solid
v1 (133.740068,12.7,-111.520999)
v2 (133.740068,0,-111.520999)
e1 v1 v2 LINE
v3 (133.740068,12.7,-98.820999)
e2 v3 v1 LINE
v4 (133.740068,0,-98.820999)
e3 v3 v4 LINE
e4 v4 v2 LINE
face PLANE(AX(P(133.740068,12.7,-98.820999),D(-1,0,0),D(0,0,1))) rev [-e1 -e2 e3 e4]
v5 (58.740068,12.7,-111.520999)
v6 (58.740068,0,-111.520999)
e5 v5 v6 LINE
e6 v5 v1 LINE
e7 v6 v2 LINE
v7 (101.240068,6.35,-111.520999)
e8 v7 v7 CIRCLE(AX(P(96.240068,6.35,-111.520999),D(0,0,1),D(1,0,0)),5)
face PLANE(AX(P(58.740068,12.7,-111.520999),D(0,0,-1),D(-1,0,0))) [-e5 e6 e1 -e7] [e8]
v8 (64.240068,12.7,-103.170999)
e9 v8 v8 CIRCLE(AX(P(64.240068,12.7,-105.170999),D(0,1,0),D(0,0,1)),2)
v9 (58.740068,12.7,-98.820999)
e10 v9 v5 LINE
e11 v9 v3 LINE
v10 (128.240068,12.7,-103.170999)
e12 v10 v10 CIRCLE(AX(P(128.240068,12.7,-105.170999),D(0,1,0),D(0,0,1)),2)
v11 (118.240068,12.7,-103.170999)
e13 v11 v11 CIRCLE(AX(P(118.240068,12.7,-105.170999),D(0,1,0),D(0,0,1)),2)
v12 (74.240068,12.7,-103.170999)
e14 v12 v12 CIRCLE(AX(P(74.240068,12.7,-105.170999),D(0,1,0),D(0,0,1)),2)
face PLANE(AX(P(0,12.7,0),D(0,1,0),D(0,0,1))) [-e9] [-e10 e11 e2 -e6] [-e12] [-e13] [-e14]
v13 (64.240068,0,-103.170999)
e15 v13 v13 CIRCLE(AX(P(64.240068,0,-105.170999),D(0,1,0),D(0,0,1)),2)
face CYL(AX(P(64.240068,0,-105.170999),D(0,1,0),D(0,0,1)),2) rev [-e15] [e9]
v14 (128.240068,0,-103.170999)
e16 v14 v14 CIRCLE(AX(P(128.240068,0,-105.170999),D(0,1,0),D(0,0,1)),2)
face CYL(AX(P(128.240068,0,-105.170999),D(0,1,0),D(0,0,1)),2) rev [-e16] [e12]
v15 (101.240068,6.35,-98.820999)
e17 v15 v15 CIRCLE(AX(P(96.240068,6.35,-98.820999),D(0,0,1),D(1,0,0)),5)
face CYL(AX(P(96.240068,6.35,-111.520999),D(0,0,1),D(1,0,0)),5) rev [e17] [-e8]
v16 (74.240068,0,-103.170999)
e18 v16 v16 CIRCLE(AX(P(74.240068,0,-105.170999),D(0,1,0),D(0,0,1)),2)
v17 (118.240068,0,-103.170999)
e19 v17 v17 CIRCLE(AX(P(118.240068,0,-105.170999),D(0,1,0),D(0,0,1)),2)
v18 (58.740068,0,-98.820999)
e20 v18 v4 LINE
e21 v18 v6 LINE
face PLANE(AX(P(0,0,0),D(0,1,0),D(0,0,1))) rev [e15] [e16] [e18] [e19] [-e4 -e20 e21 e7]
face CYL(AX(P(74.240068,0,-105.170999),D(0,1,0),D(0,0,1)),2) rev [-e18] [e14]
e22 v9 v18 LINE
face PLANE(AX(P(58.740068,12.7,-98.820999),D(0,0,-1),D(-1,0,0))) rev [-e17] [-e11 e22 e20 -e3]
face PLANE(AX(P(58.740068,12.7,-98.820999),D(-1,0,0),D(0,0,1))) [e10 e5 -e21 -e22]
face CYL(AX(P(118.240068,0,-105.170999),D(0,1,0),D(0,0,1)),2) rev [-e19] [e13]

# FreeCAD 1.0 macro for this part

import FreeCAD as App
import Part
import Sketcher
from FreeCAD import Vector
Q = App.Units.Quantity

doc = App.newDocument("Part")
body = doc.addObject("PartDesign::Body", "Body")

# Sketch on XZ plane
sketch1 = doc.addObject("Sketcher::SketchObject", "Sketch")
body.addObject(sketch1)
sketch1.AttachmentSupport = (doc.XZ_Plane, [""])
sketch1.MapMode = "FlatFace"
sketch1.addGeometry(Part.LineSegment(Vector(59, -112, 0), Vector(59, -99, 0)), False)
sketch1.addGeometry(Part.LineSegment(Vector(59, -99, 0), Vector(134, -99, 0)), False)
sketch1.addGeometry(Part.LineSegment(Vector(134, -99, 0), Vector(134, -112, 0)), False)
sketch1.addGeometry(Part.LineSegment(Vector(134, -112, 0), Vector(59, -112, 0)), False)
sketch1.addConstraint(Sketcher.Constraint("Coincident", 0, 2, 1, 1))
sketch1.addConstraint(Sketcher.Constraint("Coincident", 1, 2, 2, 1))
sketch1.addConstraint(Sketcher.Constraint("Coincident", 2, 2, 3, 1))
sketch1.addConstraint(Sketcher.Constraint("Coincident", 3, 2, 0, 1))
sketch1.addConstraint(Sketcher.Constraint("Vertical", 0))
sketch1.addConstraint(Sketcher.Constraint("Horizontal", 1))
sketch1.addConstraint(Sketcher.Constraint("Vertical", 2))
sketch1.addConstraint(Sketcher.Constraint("Horizontal", 3))
sketch1.addConstraint(Sketcher.Constraint("DistanceX", 1, 1, 1, 2, Q("75 mm")))
sketch1.addConstraint(Sketcher.Constraint("DistanceY", 0, 1, 0, 2, Q("12.7 mm")))
sketch1.addConstraint(Sketcher.Constraint("DistanceY", 0, 2, -1, 1, Q("98.820999 mm")))
sketch1.addConstraint(Sketcher.Constraint("DistanceX", -1, 1, 0, 2, Q("58.740068 mm")))
pad1 = doc.addObject("PartDesign::Pad", "Pad")
body.addObject(pad1)
pad1.Profile = sketch1
pad1.Length = 12.7
pad1.Reversed = True

# Sketch on XZ plane
sketch2 = doc.addObject("Sketcher::SketchObject", "Sketch001")
body.addObject(sketch2)
sketch2.AttachmentSupport = (doc.XZ_Plane, [""])
sketch2.MapMode = "FlatFace"
sketch2.AttachmentOffset = App.Placement(Vector(0, 0, -12.7), App.Rotation())
sketch2.addGeometry(Part.Circle(Vector(74.2, -105.2, 0), Vector(0, 0, 1), 2), False)
sketch2.addGeometry(Part.Circle(Vector(64.2, -105.2, 0), Vector(0, 0, 1), 2), False)
sketch2.addGeometry(Part.Circle(Vector(118.2, -105.2, 0), Vector(0, 0, 1), 2), False)
sketch2.addGeometry(Part.Circle(Vector(128.2, -105.2, 0), Vector(0, 0, 1), 2), False)
sketch2.addConstraint(Sketcher.Constraint("Equal", 0, 1))
sketch2.addConstraint(Sketcher.Constraint("Equal", 1, 2))
sketch2.addConstraint(Sketcher.Constraint("Equal", 2, 3))
sketch2.addConstraint(Sketcher.Constraint("Horizontal", 0, 3, 1, 3))
sketch2.addConstraint(Sketcher.Constraint("Horizontal", 1, 3, 2, 3))
sketch2.addConstraint(Sketcher.Constraint("Horizontal", 2, 3, 3, 3))
sketch2.addConstraint(Sketcher.Constraint("Diameter", 0, Q("4 mm")))
sketch2.addConstraint(Sketcher.Constraint("DistanceX", 1, 3, 0, 3, Q("10 mm")))
sketch2.addConstraint(Sketcher.Constraint("DistanceX", 0, 3, 2, 3, Q("44 mm")))
sketch2.addConstraint(Sketcher.Constraint("DistanceX", 2, 3, 3, 3, Q("10 mm")))
sketch2.addConstraint(Sketcher.Constraint("DistanceY", 0, 3, -1, 1, Q("105.170999 mm")))
sketch2.addConstraint(Sketcher.Constraint("DistanceX", -1, 1, 0, 3, Q("74.240068 mm")))
pocket1 = doc.addObject("PartDesign::Pocket", "Pocket")
body.addObject(pocket1)
pocket1.Profile = sketch2
pocket1.Type = "ThroughAll"
pocket1.Reversed = True

# Sketch on XY plane
sketch3 = doc.addObject("Sketcher::SketchObject", "Sketch002")
body.addObject(sketch3)
sketch3.AttachmentSupport = (doc.XY_Plane, [""])
sketch3.MapMode = "FlatFace"
sketch3.AttachmentOffset = App.Placement(Vector(0, 0, -98.820999), App.Rotation())
sketch3.addGeometry(Part.Circle(Vector(96, 6, 0), Vector(0, 0, 1), 5), False)
sketch3.addConstraint(Sketcher.Constraint("Diameter", 0, Q("10 mm")))
sketch3.addConstraint(Sketcher.Constraint("DistanceY", -1, 1, 0, 3, Q("6.35 mm")))
sketch3.addConstraint(Sketcher.Constraint("DistanceX", -1, 1, 0, 3, Q("96.240068 mm")))
pocket2 = doc.addObject("PartDesign::Pocket", "Pocket001")
body.addObject(pocket2)
pocket2.Profile = sketch3
pocket2.Type = "ThroughAll"

doc.recompute()
